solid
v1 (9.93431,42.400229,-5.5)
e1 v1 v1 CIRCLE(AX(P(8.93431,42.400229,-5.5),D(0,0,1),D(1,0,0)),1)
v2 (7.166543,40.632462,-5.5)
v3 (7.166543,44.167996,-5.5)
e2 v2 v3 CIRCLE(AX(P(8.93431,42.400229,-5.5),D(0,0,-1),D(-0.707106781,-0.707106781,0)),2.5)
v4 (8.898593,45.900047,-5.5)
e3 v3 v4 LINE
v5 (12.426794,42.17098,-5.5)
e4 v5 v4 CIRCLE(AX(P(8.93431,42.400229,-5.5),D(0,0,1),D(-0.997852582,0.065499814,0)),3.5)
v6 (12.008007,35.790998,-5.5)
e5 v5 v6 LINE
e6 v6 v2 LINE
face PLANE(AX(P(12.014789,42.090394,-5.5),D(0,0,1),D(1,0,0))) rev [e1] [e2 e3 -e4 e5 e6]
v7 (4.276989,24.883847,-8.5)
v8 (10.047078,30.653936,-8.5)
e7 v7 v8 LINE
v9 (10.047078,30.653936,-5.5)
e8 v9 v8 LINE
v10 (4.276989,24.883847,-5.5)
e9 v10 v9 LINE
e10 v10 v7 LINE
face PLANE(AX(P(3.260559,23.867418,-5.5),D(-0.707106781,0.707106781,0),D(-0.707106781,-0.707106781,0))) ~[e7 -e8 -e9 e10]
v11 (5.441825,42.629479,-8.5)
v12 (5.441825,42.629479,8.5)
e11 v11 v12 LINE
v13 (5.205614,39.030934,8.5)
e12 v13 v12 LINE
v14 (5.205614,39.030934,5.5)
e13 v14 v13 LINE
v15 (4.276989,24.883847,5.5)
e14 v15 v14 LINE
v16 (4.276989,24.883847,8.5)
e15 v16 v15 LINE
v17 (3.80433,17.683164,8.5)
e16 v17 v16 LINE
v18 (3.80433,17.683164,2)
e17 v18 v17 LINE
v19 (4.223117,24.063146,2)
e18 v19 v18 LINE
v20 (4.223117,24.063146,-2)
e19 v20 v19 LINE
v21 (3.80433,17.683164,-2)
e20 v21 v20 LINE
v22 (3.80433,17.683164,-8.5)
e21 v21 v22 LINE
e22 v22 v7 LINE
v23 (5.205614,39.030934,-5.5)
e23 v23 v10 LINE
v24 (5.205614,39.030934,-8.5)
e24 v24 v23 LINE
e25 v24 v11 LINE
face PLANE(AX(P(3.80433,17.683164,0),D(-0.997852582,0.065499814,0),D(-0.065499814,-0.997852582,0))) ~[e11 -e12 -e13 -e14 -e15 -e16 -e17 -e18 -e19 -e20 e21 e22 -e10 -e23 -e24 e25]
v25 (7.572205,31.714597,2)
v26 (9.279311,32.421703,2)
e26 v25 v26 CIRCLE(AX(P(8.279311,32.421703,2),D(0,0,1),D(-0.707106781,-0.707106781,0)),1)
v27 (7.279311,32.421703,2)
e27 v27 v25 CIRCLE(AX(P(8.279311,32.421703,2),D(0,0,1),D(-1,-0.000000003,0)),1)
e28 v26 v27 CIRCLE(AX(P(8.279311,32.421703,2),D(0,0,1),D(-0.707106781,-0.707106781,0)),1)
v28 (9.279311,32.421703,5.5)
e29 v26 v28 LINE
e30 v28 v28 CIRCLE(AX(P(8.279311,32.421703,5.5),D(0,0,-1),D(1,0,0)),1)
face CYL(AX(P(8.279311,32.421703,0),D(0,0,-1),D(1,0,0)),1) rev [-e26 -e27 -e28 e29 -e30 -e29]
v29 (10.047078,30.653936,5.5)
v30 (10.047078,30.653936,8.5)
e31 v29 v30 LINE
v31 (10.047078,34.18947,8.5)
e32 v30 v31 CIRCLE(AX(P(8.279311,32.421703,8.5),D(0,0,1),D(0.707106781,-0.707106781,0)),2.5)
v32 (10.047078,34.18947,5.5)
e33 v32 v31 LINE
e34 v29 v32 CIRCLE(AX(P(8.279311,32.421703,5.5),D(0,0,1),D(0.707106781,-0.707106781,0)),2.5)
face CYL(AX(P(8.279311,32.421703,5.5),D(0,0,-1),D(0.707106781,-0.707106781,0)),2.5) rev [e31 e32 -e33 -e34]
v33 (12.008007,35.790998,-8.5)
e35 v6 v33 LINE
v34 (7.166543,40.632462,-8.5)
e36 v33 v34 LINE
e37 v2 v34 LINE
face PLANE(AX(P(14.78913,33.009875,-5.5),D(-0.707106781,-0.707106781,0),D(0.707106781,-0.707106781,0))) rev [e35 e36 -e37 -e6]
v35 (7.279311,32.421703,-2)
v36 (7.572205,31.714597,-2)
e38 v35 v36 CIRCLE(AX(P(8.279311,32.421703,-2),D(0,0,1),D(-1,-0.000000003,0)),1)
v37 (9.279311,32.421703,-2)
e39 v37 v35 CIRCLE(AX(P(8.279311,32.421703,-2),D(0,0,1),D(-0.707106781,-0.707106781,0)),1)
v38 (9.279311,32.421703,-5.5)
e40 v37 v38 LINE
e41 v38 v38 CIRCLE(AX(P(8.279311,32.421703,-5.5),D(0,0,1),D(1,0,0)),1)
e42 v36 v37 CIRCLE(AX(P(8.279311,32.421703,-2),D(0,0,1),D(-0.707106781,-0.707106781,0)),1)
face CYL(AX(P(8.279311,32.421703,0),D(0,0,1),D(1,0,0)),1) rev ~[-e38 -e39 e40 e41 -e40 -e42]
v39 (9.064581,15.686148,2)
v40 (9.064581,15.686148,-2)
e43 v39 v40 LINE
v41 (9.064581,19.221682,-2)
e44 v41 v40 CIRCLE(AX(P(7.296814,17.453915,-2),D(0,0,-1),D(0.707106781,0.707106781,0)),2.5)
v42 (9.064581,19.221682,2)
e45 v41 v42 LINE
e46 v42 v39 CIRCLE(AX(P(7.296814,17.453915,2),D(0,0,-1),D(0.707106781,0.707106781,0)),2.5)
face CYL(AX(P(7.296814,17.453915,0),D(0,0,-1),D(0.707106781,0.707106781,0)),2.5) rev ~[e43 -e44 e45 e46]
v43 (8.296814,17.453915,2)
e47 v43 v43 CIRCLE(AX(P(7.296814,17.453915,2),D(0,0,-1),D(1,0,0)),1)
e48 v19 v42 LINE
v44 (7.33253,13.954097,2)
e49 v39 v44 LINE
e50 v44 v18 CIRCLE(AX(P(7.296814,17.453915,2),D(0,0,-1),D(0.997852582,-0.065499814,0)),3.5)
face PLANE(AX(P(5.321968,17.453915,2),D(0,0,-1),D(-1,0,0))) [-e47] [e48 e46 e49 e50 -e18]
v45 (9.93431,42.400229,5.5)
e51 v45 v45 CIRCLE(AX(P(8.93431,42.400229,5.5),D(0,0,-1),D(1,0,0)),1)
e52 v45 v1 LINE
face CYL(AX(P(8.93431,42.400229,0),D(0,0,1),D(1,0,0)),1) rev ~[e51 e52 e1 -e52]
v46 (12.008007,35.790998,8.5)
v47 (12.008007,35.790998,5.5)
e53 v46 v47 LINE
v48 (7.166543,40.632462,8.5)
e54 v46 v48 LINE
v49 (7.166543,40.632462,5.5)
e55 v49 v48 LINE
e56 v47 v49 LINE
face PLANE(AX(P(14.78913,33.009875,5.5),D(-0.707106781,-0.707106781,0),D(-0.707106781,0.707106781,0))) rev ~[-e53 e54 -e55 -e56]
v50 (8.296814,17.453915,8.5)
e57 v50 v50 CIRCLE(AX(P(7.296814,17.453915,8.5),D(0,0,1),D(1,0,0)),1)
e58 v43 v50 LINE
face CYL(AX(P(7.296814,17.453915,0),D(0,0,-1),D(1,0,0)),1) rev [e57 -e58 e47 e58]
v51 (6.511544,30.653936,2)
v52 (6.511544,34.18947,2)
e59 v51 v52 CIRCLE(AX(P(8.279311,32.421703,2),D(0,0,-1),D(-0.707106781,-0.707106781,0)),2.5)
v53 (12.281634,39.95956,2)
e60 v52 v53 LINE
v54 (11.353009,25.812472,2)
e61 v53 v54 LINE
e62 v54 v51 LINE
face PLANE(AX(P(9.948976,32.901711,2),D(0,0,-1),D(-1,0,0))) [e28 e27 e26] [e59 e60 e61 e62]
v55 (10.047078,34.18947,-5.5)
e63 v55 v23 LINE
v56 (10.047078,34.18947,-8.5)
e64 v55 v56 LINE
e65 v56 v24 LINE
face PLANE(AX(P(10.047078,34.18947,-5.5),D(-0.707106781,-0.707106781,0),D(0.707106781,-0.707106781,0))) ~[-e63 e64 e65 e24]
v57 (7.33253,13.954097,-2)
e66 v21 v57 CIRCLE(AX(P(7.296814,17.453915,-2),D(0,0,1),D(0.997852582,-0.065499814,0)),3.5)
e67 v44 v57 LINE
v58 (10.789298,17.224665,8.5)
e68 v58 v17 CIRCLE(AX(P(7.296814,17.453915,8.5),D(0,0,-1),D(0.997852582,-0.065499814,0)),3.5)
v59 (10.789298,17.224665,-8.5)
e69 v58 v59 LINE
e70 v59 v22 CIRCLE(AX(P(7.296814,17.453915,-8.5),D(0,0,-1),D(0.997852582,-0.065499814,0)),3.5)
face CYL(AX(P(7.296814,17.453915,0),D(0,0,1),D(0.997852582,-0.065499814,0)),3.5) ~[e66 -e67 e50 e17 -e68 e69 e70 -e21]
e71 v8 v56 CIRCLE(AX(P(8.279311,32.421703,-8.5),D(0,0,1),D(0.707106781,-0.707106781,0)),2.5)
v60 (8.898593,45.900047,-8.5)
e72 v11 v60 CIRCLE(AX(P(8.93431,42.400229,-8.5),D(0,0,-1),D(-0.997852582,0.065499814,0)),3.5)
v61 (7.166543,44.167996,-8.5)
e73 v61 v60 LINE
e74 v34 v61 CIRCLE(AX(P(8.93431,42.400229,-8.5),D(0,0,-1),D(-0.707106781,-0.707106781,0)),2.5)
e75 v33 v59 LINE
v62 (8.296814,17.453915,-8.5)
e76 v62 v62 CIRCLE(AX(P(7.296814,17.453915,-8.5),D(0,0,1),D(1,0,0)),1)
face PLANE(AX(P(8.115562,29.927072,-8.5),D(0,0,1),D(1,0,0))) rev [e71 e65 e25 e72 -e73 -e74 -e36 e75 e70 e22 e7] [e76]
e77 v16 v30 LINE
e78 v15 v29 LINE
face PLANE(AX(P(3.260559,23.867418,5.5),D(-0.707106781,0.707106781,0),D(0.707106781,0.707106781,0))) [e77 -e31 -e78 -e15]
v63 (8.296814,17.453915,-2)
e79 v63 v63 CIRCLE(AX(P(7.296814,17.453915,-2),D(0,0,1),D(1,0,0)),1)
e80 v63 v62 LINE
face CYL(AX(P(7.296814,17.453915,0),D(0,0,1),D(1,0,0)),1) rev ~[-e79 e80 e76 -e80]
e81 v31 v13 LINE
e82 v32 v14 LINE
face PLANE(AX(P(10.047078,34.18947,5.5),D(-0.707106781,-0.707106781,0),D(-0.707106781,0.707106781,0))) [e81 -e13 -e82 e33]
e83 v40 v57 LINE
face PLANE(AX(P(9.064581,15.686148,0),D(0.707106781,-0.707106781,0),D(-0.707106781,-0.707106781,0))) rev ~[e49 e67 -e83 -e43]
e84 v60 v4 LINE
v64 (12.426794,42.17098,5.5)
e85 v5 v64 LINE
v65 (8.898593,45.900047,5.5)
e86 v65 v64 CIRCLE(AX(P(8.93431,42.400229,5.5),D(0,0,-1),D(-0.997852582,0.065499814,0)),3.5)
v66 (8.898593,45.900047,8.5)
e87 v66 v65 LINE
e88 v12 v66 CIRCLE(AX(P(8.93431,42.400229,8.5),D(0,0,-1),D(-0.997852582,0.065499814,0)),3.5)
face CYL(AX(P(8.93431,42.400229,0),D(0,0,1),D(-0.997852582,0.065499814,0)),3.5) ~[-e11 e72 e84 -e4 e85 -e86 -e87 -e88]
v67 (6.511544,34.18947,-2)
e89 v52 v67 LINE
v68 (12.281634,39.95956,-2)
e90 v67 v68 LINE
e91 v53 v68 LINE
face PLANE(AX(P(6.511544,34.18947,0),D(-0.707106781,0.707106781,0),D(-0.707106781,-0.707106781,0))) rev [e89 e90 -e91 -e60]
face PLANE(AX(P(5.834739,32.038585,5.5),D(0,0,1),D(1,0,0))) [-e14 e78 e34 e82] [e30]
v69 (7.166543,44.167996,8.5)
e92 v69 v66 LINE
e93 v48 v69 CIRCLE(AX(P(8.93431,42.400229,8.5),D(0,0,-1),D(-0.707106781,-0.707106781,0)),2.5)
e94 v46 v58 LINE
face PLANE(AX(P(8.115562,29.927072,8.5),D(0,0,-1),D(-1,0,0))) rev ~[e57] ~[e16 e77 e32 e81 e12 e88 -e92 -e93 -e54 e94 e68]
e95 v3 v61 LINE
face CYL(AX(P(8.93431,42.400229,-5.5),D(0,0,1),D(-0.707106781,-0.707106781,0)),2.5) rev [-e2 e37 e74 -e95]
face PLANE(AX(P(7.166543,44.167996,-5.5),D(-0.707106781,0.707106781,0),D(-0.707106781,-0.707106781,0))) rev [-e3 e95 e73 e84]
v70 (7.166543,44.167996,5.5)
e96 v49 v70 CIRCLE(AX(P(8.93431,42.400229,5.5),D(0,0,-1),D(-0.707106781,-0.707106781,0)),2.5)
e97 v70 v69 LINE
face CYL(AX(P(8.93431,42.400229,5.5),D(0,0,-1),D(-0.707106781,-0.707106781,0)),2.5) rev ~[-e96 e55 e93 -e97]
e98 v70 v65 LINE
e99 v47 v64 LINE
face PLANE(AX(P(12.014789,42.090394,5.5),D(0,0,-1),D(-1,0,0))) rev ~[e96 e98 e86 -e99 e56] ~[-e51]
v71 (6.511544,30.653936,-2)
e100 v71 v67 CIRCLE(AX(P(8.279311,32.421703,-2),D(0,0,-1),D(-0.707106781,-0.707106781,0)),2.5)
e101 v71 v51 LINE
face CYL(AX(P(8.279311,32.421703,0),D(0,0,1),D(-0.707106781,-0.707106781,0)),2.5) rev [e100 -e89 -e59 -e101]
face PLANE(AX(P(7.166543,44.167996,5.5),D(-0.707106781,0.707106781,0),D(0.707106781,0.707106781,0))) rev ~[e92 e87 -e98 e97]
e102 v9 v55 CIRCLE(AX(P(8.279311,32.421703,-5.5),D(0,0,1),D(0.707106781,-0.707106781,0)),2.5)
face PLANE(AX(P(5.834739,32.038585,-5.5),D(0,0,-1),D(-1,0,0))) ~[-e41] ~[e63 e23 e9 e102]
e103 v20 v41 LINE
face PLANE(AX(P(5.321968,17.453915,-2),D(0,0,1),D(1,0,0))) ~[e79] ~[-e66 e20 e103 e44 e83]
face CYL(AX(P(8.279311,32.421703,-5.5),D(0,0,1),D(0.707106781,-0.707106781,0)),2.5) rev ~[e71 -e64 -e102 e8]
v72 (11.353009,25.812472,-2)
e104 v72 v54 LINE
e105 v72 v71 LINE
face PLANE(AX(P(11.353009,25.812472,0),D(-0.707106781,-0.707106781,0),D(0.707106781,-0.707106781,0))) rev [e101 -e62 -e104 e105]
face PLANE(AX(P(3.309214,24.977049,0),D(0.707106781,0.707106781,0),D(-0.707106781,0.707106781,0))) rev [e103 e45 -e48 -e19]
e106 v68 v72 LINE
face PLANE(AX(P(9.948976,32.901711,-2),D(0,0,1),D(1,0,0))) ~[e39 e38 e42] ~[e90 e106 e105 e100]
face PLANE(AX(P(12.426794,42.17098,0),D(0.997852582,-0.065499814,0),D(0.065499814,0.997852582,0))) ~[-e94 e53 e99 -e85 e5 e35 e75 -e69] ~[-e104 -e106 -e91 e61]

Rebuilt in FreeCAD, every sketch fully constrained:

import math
import FreeCAD as App
import Part
import Sketcher

doc = App.newDocument("Part")
params = doc.addObject("Spreadsheet::Sheet", "Params")
for row, (alias, value) in enumerate([
    ("sketch1_diameter", "2 mm"),
    ("sketch1_radius", "3.5 mm"),
    ("sketch1_length", "25 mm"),
    ("pad1_length", "8.5 mm"),
    ("sketch2_radius", "1 mm"),
    ("sketch2_radius2", "2.5 mm"),
    ("pocket1_length", "2 mm"),
    ("sketch3_radius", "2.5 mm"),
    ("pocket2_length", "3 mm"),
], start=1):
    params.set(f"A{row}", alias)
    params.set(f"B{row}", "=" + value)
    params.setAlias(f"B{row}", alias)

body = doc.addObject("PartDesign::Body", "Body")

# Sketch on XY plane
sketch1 = doc.addObject("Sketcher::SketchObject", "Sketch")
body.addObject(sketch1)
sketch1.AttachmentSupport = (doc.XY_Plane, [""])
sketch1.MapMode = "FlatFace"
sketch1.addGeometry([
    Part.LineSegment(App.Vector(10.789298, 17.224665, 0), App.Vector(12.426794, 42.17098, 0)),  # 0
    Part.ArcOfCircle(Part.Circle(App.Vector(8.93431, 42.400229, 0), App.Vector(0, 0, 1), 3.5), math.radians(-3.755552), math.radians(176.244448)),  # 1
    Part.LineSegment(App.Vector(5.441825, 42.629479, 0), App.Vector(3.80433, 17.683164, 0)),  # 2
    Part.ArcOfCircle(Part.Circle(App.Vector(7.296814, 17.453915, 0), App.Vector(0, 0, 1), 3.5), math.radians(176.244449), math.radians(356.244448)),  # 3
    Part.Circle(App.Vector(7.296814, 17.453915, 0), App.Vector(0, 0, 1), 1),  # 4
    Part.Circle(App.Vector(8.279311, 32.421703, 0), App.Vector(0, 0, 1), 1),  # 5
    Part.Circle(App.Vector(8.93431, 42.400229, 0), App.Vector(0, 0, 1), 1),  # 6
], False)
sketch1.addConstraint([
    Sketcher.Constraint("Tangent", 0, 2, 1, 1),
    Sketcher.Constraint("Tangent", 1, 2, 2, 1),
    Sketcher.Constraint("Tangent", 2, 2, 3, 1),
    Sketcher.Constraint("Tangent", 3, 2, 0, 1),
    Sketcher.Constraint("Coincident", 4, 3, 3, 3),
    Sketcher.Constraint("Coincident", 6, 3, 1, 3),
    Sketcher.Constraint("Equal", 1, 3),
    Sketcher.Constraint("Equal", 4, 5),
    Sketcher.Constraint("Equal", 5, 6),
    Sketcher.Constraint("Diameter", 4, 2.0),
    Sketcher.Constraint("Radius", 1, 3.5),
    Sketcher.Constraint("Distance", 0, 25.0),
    Sketcher.Constraint("DistanceX", 5, 3, 1, 3, 0.654998),
    Sketcher.Constraint("DistanceX", -1, 1, 3, 2, 10.789298),
    Sketcher.Constraint("DistanceY", 0, 2, 1, 2, 0.458499),
    Sketcher.Constraint("DistanceY", -1, 1, 1, 3, 42.400229),
    Sketcher.Constraint("DistanceY", 3, 3, 5, 3, 14.967789),
])
sketch1.setExpression("Constraints[9]", "Params.sketch1_diameter")
sketch1.setExpression("Constraints[10]", "Params.sketch1_radius")
sketch1.setExpression("Constraints[11]", "Params.sketch1_length")
pad1 = doc.addObject("PartDesign::Pad", "Pad")
body.addObject(pad1)
pad1.Profile = sketch1
pad1.setExpression("Length", "Params.pad1_length")

# Sketch on XY plane
sketch2 = doc.addObject("Sketcher::SketchObject", "Sketch001")
body.addObject(sketch2)
sketch2.AttachmentSupport = (doc.XY_Plane, [""])
sketch2.MapMode = "FlatFace"
sketch2.addGeometry([
    Part.ArcOfCircle(Part.Circle(App.Vector(8.279311, 32.421703, 0), App.Vector(0, 0, 1), 2.5), math.radians(135), math.radians(225)),  # 0
    Part.LineSegment(App.Vector(6.511544, 34.18947, 0), App.Vector(12.281634, 39.95956, 0)),  # 1
    Part.LineSegment(App.Vector(12.281634, 39.95956, 0), App.Vector(11.353009, 25.812472, 0)),  # 2
    Part.LineSegment(App.Vector(11.353009, 25.812472, 0), App.Vector(6.511544, 30.653936, 0)),  # 3
    Part.ArcOfCircle(Part.Circle(App.Vector(8.279311, 32.421703, 0), App.Vector(0, 0, 1), 1), math.radians(-135), math.radians(180)),  # 4
    Part.ArcOfCircle(Part.Circle(App.Vector(8.279311, 32.421703, 0), App.Vector(0, 0, 1), 1), math.radians(-180), math.radians(-135)),  # 5
    Part.ArcOfCircle(Part.Circle(App.Vector(7.296814, 17.453915, 0), App.Vector(0, 0, 1), 2.5), math.radians(-45), math.radians(45)),  # 6
    Part.LineSegment(App.Vector(9.064581, 15.686148, 0), App.Vector(3.309214, 9.930781, 0)),  # 7
    Part.LineSegment(App.Vector(3.309214, 9.930781, 0), App.Vector(3.309214, 24.977049, 0)),  # 8
    Part.LineSegment(App.Vector(3.309214, 24.977049, 0), App.Vector(9.064581, 19.221682, 0)),  # 9
], False)
sketch2.addConstraint([
    Sketcher.Constraint("Tangent", 0, 1, 1, 1),
    Sketcher.Constraint("Coincident", 1, 2, 2, 1),
    Sketcher.Constraint("Coincident", 2, 2, 3, 1),
    Sketcher.Constraint("Tangent", 3, 2, 0, 2),
    Sketcher.Constraint("Tangent", 4, 1, 5, 2),
    Sketcher.Constraint("Coincident", 5, 1, 4, 2),
    Sketcher.Constraint("Tangent", 6, 1, 7, 1),
    Sketcher.Constraint("Coincident", 7, 2, 8, 1),
    Sketcher.Constraint("Coincident", 8, 2, 9, 1),
    Sketcher.Constraint("Tangent", 9, 2, 6, 2),
    Sketcher.Constraint("Vertical", 8),
    Sketcher.Constraint("Coincident", 4, 3, 0, 3),
    Sketcher.Constraint("Equal", 0, 6),
    Sketcher.Constraint("Perpendicular", 1, 3),
    Sketcher.Constraint("Perpendicular", 3, 7),
    Sketcher.Constraint("Perpendicular", 7, 9),
    Sketcher.Constraint("Horizontal", 4, 3, 5, 1),
    Sketcher.Constraint("Vertical", 0, 1, 3, 2),
    Sketcher.Constraint("Radius", 4, 1.0),
    Sketcher.Constraint("Radius", 0, 2.5),
    Sketcher.Constraint("DistanceY", 8, 1, 8, 2, 15.046268),
    Sketcher.Constraint("Distance", 1, 8.160139),
    Sketcher.Constraint("DistanceX", -1, 1, 0, 3, 8.279311),
    Sketcher.Constraint("DistanceY", -1, 1, 0, 1, 34.18947),
    Sketcher.Constraint("DistanceX", -1, 1, 2, 2, 11.353009),
    Sketcher.Constraint("DistanceX", -1, 1, 6, 1, 9.064581),
    Sketcher.Constraint("DistanceY", -1, 1, 7, 2, 9.930781),
    Sketcher.Constraint("DistanceX", 3, 2, 4, 1, 1.06066),
])
sketch2.setExpression("Constraints[18]", "Params.sketch2_radius")
sketch2.setExpression("Constraints[19]", "Params.sketch2_radius2")
pocket1 = doc.addObject("PartDesign::Pocket", "Pocket")
body.addObject(pocket1)
pocket1.Profile = sketch2
pocket1.setExpression("Length", "Params.pocket1_length")
pocket1.Reversed = True

# Sketch on XY plane
sketch3 = doc.addObject("Sketcher::SketchObject", "Sketch002")
body.addObject(sketch3)
sketch3.AttachmentSupport = (doc.XY_Plane, [""])
sketch3.MapMode = "FlatFace"
sketch3.AttachmentOffset = App.Placement(App.Vector(0, 0, 5.5), App.Rotation())
sketch3.addGeometry([
    Part.LineSegment(App.Vector(14.185239, 51.186693, 0), App.Vector(7.166543, 44.167996, 0)),  # 0
    Part.ArcOfCircle(Part.Circle(App.Vector(8.93431, 42.400229, 0), App.Vector(0, 0, 1), 2.5), math.radians(135), math.radians(225)),  # 1
    Part.LineSegment(App.Vector(7.166543, 40.632462, 0), App.Vector(14.78913, 33.009875, 0)),  # 2
    Part.LineSegment(App.Vector(14.78913, 33.009875, 0), App.Vector(14.185239, 51.186693, 0)),  # 3
    Part.LineSegment(App.Vector(10.047078, 34.18947, 0), App.Vector(4.005127, 40.231422, 0)),  # 4
    Part.LineSegment(App.Vector(4.005127, 40.231422, 0), App.Vector(3.260559, 23.867418, 0)),  # 5
    Part.LineSegment(App.Vector(3.260559, 23.867418, 0), App.Vector(10.047078, 30.653936, 0)),  # 6
    Part.ArcOfCircle(Part.Circle(App.Vector(8.279311, 32.421703, 0), App.Vector(0, 0, 1), 2.5), math.radians(-45), math.radians(45)),  # 7
], False)
sketch3.addConstraint([
    Sketcher.Constraint("Tangent", 0, 2, 1, 1),
    Sketcher.Constraint("Tangent", 1, 2, 2, 1),
    Sketcher.Constraint("Coincident", 2, 2, 3, 1),
    Sketcher.Constraint("Coincident", 3, 2, 0, 1),
    Sketcher.Constraint("Coincident", 4, 2, 5, 1),
    Sketcher.Constraint("Coincident", 5, 2, 6, 1),
    Sketcher.Constraint("Tangent", 6, 2, 7, 1),
    Sketcher.Constraint("Tangent", 7, 2, 4, 1),
    Sketcher.Constraint("Equal", 1, 7),
    Sketcher.Constraint("Perpendicular", 0, 2),
    Sketcher.Constraint("Parallel", 2, 4),
    Sketcher.Constraint("Perpendicular", 4, 6),
    Sketcher.Constraint("Vertical", 0, 2, 1, 2),
    Sketcher.Constraint("Radius", 1, 2.5),
    Sketcher.Constraint("DistanceX", 7, 3, 1, 3, 0.654998),
    Sketcher.Constraint("Distance", 4, 8.54461),
    Sketcher.Constraint("DistanceX", -1, 1, 1, 3, 8.93431),
    Sketcher.Constraint("DistanceY", -1, 1, 1, 3, 42.400229),
    Sketcher.Constraint("DistanceX", -1, 1, 2, 2, 14.78913),
    Sketcher.Constraint("DistanceX", -1, 1, 3, 2, 14.185239),
    Sketcher.Constraint("DistanceY", -1, 1, 4, 2, 40.231422),
    Sketcher.Constraint("DistanceX", -1, 1, 5, 2, 3.260559),
])
sketch3.setExpression("Constraints[13]", "Params.sketch3_radius")
pocket2 = doc.addObject("PartDesign::Pocket", "Pocket001")
body.addObject(pocket2)
pocket2.Profile = sketch3
pocket2.setExpression("Length", "Params.pocket2_length")
pocket2.Reversed = True
doc.recompute()

mirrored = doc.addObject("PartDesign::Mirrored", "Mirrored")
body.addObject(mirrored)
mirrored.Originals = [pad1, pocket1, pocket2]
mirrored.MirrorPlane = (doc.XY_Plane, [""])
body.Tip = mirrored

doc.recompute()
